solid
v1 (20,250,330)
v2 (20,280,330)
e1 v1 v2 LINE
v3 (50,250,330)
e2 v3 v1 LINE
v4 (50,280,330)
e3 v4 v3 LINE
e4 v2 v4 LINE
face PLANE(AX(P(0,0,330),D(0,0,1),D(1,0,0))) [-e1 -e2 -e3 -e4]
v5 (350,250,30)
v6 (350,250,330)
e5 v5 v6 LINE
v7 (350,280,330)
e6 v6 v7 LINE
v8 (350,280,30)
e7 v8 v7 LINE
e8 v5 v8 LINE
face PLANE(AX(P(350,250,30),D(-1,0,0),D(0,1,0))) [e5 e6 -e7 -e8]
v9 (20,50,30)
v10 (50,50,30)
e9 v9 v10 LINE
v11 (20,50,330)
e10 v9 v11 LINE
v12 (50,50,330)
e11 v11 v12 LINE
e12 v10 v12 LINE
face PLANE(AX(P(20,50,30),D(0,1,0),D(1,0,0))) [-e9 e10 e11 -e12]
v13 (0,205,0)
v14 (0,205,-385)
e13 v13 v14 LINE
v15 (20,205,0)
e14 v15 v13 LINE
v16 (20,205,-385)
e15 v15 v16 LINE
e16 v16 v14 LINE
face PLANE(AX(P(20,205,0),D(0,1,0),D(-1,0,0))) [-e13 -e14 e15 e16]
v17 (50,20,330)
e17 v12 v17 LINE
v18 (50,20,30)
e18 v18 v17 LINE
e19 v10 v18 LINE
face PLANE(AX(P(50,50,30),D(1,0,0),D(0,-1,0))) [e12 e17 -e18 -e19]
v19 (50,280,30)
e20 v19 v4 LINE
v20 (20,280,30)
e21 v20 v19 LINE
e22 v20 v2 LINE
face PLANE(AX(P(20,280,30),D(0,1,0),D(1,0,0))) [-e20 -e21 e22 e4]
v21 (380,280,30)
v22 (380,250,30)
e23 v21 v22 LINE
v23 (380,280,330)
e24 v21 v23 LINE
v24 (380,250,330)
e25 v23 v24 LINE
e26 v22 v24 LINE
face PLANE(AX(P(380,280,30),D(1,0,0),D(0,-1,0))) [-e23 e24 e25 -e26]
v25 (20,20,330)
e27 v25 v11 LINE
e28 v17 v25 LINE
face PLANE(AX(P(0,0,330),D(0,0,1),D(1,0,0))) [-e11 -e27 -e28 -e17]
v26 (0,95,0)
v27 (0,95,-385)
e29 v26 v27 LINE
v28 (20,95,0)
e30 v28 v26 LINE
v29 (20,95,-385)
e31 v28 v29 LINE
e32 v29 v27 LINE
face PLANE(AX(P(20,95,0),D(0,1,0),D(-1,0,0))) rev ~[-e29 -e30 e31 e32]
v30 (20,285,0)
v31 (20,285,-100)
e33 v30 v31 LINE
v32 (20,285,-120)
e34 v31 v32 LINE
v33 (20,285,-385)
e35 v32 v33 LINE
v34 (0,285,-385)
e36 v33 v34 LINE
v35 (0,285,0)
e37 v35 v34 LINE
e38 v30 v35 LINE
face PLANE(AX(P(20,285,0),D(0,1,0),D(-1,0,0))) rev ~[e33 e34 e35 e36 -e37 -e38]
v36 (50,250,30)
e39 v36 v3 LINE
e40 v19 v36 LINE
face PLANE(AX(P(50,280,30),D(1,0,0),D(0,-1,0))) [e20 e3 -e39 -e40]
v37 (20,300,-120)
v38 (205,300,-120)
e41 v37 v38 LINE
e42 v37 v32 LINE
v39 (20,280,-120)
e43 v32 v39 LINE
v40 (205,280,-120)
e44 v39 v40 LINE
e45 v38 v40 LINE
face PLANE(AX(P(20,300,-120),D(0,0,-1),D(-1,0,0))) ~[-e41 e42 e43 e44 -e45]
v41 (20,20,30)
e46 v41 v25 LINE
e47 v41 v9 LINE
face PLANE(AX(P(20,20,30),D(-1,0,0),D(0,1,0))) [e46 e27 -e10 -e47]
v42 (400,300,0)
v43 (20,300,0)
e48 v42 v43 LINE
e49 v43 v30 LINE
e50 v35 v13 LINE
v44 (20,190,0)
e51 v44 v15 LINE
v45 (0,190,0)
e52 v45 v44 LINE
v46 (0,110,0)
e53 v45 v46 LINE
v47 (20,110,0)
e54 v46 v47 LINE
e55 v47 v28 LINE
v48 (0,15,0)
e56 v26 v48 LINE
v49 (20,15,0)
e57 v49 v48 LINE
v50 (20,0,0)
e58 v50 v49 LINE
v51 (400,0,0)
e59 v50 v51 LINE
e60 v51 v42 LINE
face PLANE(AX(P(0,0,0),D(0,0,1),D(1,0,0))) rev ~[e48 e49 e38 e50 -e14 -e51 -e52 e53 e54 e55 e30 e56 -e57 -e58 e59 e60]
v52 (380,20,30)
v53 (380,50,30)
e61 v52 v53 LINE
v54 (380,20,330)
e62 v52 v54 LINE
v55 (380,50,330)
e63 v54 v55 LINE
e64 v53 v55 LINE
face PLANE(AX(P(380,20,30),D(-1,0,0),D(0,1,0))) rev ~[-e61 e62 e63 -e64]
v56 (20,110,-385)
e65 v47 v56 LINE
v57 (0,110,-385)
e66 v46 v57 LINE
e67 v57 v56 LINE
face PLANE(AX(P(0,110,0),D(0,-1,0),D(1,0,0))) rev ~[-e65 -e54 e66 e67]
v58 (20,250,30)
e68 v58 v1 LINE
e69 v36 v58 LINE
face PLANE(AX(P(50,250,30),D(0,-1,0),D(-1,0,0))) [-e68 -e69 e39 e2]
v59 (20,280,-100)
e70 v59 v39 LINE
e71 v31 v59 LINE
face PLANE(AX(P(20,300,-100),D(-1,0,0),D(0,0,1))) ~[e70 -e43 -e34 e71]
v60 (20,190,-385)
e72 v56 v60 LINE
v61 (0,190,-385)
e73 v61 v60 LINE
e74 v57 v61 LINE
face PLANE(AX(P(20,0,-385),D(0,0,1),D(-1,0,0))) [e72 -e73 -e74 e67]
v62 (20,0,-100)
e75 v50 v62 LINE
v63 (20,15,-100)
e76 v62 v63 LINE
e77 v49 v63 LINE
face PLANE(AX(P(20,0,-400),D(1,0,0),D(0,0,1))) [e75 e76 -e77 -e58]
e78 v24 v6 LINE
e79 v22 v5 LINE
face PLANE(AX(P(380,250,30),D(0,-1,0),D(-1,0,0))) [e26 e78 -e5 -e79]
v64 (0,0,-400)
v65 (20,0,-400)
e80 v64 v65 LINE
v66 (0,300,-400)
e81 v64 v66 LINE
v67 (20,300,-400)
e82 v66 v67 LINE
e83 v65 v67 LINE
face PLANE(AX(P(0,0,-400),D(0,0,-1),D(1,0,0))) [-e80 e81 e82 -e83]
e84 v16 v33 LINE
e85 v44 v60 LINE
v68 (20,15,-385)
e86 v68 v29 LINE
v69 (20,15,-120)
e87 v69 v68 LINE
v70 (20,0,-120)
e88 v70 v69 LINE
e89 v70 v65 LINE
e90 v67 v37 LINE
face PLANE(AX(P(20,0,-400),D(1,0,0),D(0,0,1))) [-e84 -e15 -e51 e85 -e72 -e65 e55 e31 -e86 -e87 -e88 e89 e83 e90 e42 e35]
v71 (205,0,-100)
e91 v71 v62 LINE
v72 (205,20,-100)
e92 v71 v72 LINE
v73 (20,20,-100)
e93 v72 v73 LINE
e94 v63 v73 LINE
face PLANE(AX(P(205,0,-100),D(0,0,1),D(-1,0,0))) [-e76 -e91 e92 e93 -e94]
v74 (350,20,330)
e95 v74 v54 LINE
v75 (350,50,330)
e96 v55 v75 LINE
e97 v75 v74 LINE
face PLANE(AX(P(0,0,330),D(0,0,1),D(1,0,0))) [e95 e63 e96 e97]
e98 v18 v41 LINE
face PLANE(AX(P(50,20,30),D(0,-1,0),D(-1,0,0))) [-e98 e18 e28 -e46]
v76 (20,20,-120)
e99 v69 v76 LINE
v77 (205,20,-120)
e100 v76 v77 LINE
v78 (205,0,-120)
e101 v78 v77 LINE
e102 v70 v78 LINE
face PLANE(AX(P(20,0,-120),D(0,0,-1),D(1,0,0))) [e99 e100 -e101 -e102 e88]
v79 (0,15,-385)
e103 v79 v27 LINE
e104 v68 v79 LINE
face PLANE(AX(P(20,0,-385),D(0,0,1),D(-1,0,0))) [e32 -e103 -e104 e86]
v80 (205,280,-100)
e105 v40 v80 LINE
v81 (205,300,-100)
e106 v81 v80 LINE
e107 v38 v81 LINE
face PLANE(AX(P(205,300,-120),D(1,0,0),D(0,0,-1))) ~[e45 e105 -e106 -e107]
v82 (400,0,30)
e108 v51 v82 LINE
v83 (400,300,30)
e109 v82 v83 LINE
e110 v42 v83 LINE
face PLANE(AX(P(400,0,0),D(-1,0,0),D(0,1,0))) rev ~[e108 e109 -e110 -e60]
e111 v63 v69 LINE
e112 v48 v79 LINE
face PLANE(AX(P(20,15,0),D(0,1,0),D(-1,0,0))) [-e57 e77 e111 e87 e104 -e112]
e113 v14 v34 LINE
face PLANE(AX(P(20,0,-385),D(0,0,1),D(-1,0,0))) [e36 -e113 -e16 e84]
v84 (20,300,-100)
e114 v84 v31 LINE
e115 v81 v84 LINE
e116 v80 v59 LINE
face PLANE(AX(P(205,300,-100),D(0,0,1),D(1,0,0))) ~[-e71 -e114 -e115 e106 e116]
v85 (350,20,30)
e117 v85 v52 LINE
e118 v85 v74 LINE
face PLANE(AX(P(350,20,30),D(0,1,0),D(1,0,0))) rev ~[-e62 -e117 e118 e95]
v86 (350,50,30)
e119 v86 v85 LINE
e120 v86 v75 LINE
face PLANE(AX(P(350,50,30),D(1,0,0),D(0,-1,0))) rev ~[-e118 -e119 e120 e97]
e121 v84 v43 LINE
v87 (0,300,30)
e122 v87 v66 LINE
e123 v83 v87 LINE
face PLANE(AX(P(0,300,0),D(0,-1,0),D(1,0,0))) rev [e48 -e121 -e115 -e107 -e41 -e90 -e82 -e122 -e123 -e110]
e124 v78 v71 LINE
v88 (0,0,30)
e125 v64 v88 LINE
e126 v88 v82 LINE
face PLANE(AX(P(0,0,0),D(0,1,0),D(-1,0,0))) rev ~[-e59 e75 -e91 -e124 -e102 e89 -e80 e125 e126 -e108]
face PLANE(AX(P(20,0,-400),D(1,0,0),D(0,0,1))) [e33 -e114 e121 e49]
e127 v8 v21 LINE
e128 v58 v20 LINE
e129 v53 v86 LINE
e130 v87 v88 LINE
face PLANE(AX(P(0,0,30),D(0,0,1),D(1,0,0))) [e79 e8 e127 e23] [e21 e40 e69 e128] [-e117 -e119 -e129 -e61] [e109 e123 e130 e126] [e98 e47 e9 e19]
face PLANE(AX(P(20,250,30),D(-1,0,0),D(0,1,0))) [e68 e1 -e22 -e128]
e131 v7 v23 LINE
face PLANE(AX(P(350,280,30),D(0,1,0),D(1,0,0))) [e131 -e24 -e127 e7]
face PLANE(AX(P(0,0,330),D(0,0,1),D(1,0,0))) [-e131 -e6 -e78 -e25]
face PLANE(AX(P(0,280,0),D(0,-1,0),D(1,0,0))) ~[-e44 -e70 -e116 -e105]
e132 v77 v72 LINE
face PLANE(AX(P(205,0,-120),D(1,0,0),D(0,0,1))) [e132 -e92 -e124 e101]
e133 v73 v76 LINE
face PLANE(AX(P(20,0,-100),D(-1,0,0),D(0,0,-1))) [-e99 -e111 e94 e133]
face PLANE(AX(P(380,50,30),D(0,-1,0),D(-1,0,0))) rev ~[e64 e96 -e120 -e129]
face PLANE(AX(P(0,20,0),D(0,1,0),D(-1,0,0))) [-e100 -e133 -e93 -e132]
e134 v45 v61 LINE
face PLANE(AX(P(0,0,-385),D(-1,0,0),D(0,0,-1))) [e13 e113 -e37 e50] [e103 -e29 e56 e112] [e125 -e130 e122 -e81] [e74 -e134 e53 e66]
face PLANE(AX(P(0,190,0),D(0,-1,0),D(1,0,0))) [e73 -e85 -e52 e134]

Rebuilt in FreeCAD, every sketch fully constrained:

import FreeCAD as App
import Part
import Sketcher

doc = App.newDocument("Part")
body = doc.addObject("PartDesign::Body", "Body")

# Sketch on XY plane
sketch1 = doc.addObject("Sketcher::SketchObject", "Sketch")
body.addObject(sketch1)
sketch1.AttachmentSupport = (doc.XY_Plane, [""])
sketch1.MapMode = "FlatFace"
sketch1.addGeometry(Part.LineSegment(App.Vector(0, 300, 0), App.Vector(0, 0, 0)), False)
sketch1.addGeometry(Part.LineSegment(App.Vector(0, 0, 0), App.Vector(400, 0, 0)), False)
sketch1.addGeometry(Part.LineSegment(App.Vector(400, 0, 0), App.Vector(400, 300, 0)), False)
sketch1.addGeometry(Part.LineSegment(App.Vector(400, 300, 0), App.Vector(0, 300, 0)), False)
sketch1.addConstraint(Sketcher.Constraint("Coincident", 0, 2, 1, 1))
sketch1.addConstraint(Sketcher.Constraint("Coincident", 1, 2, 2, 1))
sketch1.addConstraint(Sketcher.Constraint("Coincident", 2, 2, 3, 1))
sketch1.addConstraint(Sketcher.Constraint("Coincident", 3, 2, 0, 1))
sketch1.addConstraint(Sketcher.Constraint("Vertical", 0))
sketch1.addConstraint(Sketcher.Constraint("Horizontal", 1))
sketch1.addConstraint(Sketcher.Constraint("Vertical", 2))
sketch1.addConstraint(Sketcher.Constraint("Horizontal", 3))
sketch1.addConstraint(Sketcher.Constraint("Coincident", 0, 2, -1, 1))
sketch1.addConstraint(Sketcher.Constraint("DistanceX", 1, 1, 1, 2, 400.0))
sketch1.addConstraint(Sketcher.Constraint("DistanceY", 0, 2, 0, 1, 300.0))
pad1 = doc.addObject("PartDesign::Pad", "Pad")
body.addObject(pad1)
pad1.Profile = sketch1
pad1.Length = 30

# Sketch on XY plane
sketch2 = doc.addObject("Sketcher::SketchObject", "Sketch001")
body.addObject(sketch2)
sketch2.AttachmentSupport = (doc.XY_Plane, [""])
sketch2.MapMode = "FlatFace"
sketch2.AttachmentOffset = App.Placement(App.Vector(0, 0, 30), App.Rotation())
sketch2.addGeometry(Part.LineSegment(App.Vector(50, 280, 0), App.Vector(20, 280, 0)), False)
sketch2.addGeometry(Part.LineSegment(App.Vector(20, 280, 0), App.Vector(20, 250, 0)), False)
sketch2.addGeometry(Part.LineSegment(App.Vector(20, 250, 0), App.Vector(50, 250, 0)), False)
sketch2.addGeometry(Part.LineSegment(App.Vector(50, 250, 0), App.Vector(50, 280, 0)), False)
sketch2.addGeometry(Part.LineSegment(App.Vector(380, 280, 0), App.Vector(350, 280, 0)), False)
sketch2.addGeometry(Part.LineSegment(App.Vector(350, 280, 0), App.Vector(350, 250, 0)), False)
sketch2.addGeometry(Part.LineSegment(App.Vector(350, 250, 0), App.Vector(380, 250, 0)), False)
sketch2.addGeometry(Part.LineSegment(App.Vector(380, 250, 0), App.Vector(380, 280, 0)), False)
sketch2.addGeometry(Part.LineSegment(App.Vector(350, 50, 0), App.Vector(350, 20, 0)), False)
sketch2.addGeometry(Part.LineSegment(App.Vector(350, 20, 0), App.Vector(380, 20, 0)), False)
sketch2.addGeometry(Part.LineSegment(App.Vector(380, 20, 0), App.Vector(380, 50, 0)), False)
sketch2.addGeometry(Part.LineSegment(App.Vector(380, 50, 0), App.Vector(350, 50, 0)), False)
sketch2.addGeometry(Part.LineSegment(App.Vector(50, 50, 0), App.Vector(20, 50, 0)), False)
sketch2.addGeometry(Part.LineSegment(App.Vector(20, 50, 0), App.Vector(20, 20, 0)), False)
sketch2.addGeometry(Part.LineSegment(App.Vector(20, 20, 0), App.Vector(50, 20, 0)), False)
sketch2.addGeometry(Part.LineSegment(App.Vector(50, 20, 0), App.Vector(50, 50, 0)), False)
sketch2.addConstraint(Sketcher.Constraint("Coincident", 0, 2, 1, 1))
sketch2.addConstraint(Sketcher.Constraint("Coincident", 1, 2, 2, 1))
sketch2.addConstraint(Sketcher.Constraint("Coincident", 2, 2, 3, 1))
sketch2.addConstraint(Sketcher.Constraint("Coincident", 3, 2, 0, 1))
sketch2.addConstraint(Sketcher.Constraint("Coincident", 4, 2, 5, 1))
sketch2.addConstraint(Sketcher.Constraint("Coincident", 5, 2, 6, 1))
sketch2.addConstraint(Sketcher.Constraint("Coincident", 6, 2, 7, 1))
sketch2.addConstraint(Sketcher.Constraint("Coincident", 7, 2, 4, 1))
sketch2.addConstraint(Sketcher.Constraint("Coincident", 8, 2, 9, 1))
sketch2.addConstraint(Sketcher.Constraint("Coincident", 9, 2, 10, 1))
sketch2.addConstraint(Sketcher.Constraint("Coincident", 10, 2, 11, 1))
sketch2.addConstraint(Sketcher.Constraint("Coincident", 11, 2, 8, 1))
sketch2.addConstraint(Sketcher.Constraint("Coincident", 12, 2, 13, 1))
sketch2.addConstraint(Sketcher.Constraint("Coincident", 13, 2, 14, 1))
sketch2.addConstraint(Sketcher.Constraint("Coincident", 14, 2, 15, 1))
sketch2.addConstraint(Sketcher.Constraint("Coincident", 15, 2, 12, 1))
sketch2.addConstraint(Sketcher.Constraint("Horizontal", 0))
sketch2.addConstraint(Sketcher.Constraint("Vertical", 1))
sketch2.addConstraint(Sketcher.Constraint("Horizontal", 2))
sketch2.addConstraint(Sketcher.Constraint("Vertical", 3))
sketch2.addConstraint(Sketcher.Constraint("Horizontal", 4))
sketch2.addConstraint(Sketcher.Constraint("Vertical", 5))
sketch2.addConstraint(Sketcher.Constraint("Horizontal", 6))
sketch2.addConstraint(Sketcher.Constraint("Vertical", 7))
sketch2.addConstraint(Sketcher.Constraint("Vertical", 8))
sketch2.addConstraint(Sketcher.Constraint("Horizontal", 9))
sketch2.addConstraint(Sketcher.Constraint("Vertical", 10))
sketch2.addConstraint(Sketcher.Constraint("Horizontal", 11))
sketch2.addConstraint(Sketcher.Constraint("Horizontal", 12))
sketch2.addConstraint(Sketcher.Constraint("Vertical", 13))
sketch2.addConstraint(Sketcher.Constraint("Horizontal", 14))
sketch2.addConstraint(Sketcher.Constraint("Vertical", 15))
sketch2.addConstraint(Sketcher.Constraint("Horizontal", 3, 2, 4, 2))
sketch2.addConstraint(Sketcher.Constraint("Horizontal", 2, 2, 5, 2))
sketch2.addConstraint(Sketcher.Constraint("Horizontal", 11, 2, 12, 2))
sketch2.addConstraint(Sketcher.Constraint("Horizontal", 9, 2, 13, 2))
sketch2.addConstraint(Sketcher.Constraint("Vertical", 5, 2, 8, 2))
sketch2.addConstraint(Sketcher.Constraint("Vertical", 7, 2, 9, 2))
sketch2.addConstraint(Sketcher.Constraint("Vertical", 1, 2, 12, 2))
sketch2.addConstraint(Sketcher.Constraint("Vertical", 3, 2, 14, 2))
sketch2.addConstraint(Sketcher.Constraint("Equal", 2, 4))
sketch2.addConstraint(Sketcher.Constraint("Equal", 14, 1))
sketch2.addConstraint(Sketcher.Constraint("Equal", 7, 8))
sketch2.addConstraint(Sketcher.Constraint("DistanceX", 0, 2, 0, 1, 30.0))
sketch2.addConstraint(Sketcher.Constraint("DistanceX", -1, 1, 0, 2, 20.0))
sketch2.addConstraint(Sketcher.Constraint("DistanceY", -1, 1, 8, 2, 20.0))
sketch2.addConstraint(Sketcher.Constraint("DistanceY", -1, 1, 0, 2, 280.0))
sketch2.addConstraint(Sketcher.Constraint("DistanceX", -1, 1, 4, 2, 350.0))
pad2 = doc.addObject("PartDesign::Pad", "Pad001")
body.addObject(pad2)
pad2.Profile = sketch2
pad2.Length = 300

# Sketch on XY plane
sketch3 = doc.addObject("Sketcher::SketchObject", "Sketch002")
body.addObject(sketch3)
sketch3.AttachmentSupport = (doc.XY_Plane, [""])
sketch3.MapMode = "FlatFace"
sketch3.addGeometry(Part.LineSegment(App.Vector(0, 0, 0), App.Vector(0, 15, 0)), False)
sketch3.addGeometry(Part.LineSegment(App.Vector(0, 15, 0), App.Vector(20, 15, 0)), False)
sketch3.addGeometry(Part.LineSegment(App.Vector(20, 15, 0), App.Vector(20, 0, 0)), False)
sketch3.addGeometry(Part.LineSegment(App.Vector(20, 0, 0), App.Vector(0, 0, 0)), False)
sketch3.addGeometry(Part.LineSegment(App.Vector(0, 95, 0), App.Vector(0, 110, 0)), False)
sketch3.addGeometry(Part.LineSegment(App.Vector(0, 110, 0), App.Vector(20, 110, 0)), False)
sketch3.addGeometry(Part.LineSegment(App.Vector(20, 110, 0), App.Vector(20, 95, 0)), False)
sketch3.addGeometry(Part.LineSegment(App.Vector(20, 95, 0), App.Vector(0, 95, 0)), False)
sketch3.addGeometry(Part.LineSegment(App.Vector(0, 190, 0), App.Vector(0, 205, 0)), False)
sketch3.addGeometry(Part.LineSegment(App.Vector(0, 205, 0), App.Vector(20, 205, 0)), False)
sketch3.addGeometry(Part.LineSegment(App.Vector(20, 205, 0), App.Vector(20, 190, 0)), False)
sketch3.addGeometry(Part.LineSegment(App.Vector(20, 190, 0), App.Vector(0, 190, 0)), False)
sketch3.addGeometry(Part.LineSegment(App.Vector(0, 300, 0), App.Vector(20, 300, 0)), False)
sketch3.addGeometry(Part.LineSegment(App.Vector(20, 300, 0), App.Vector(20, 285, 0)), False)
sketch3.addGeometry(Part.LineSegment(App.Vector(20, 285, 0), App.Vector(0, 285, 0)), False)
sketch3.addGeometry(Part.LineSegment(App.Vector(0, 285, 0), App.Vector(0, 300, 0)), False)
sketch3.addConstraint(Sketcher.Constraint("Coincident", 0, 2, 1, 1))
sketch3.addConstraint(Sketcher.Constraint("Coincident", 1, 2, 2, 1))
sketch3.addConstraint(Sketcher.Constraint("Coincident", 2, 2, 3, 1))
sketch3.addConstraint(Sketcher.Constraint("Coincident", 3, 2, 0, 1))
sketch3.addConstraint(Sketcher.Constraint("Coincident", 4, 2, 5, 1))
sketch3.addConstraint(Sketcher.Constraint("Coincident", 5, 2, 6, 1))
sketch3.addConstraint(Sketcher.Constraint("Coincident", 6, 2, 7, 1))
sketch3.addConstraint(Sketcher.Constraint("Coincident", 7, 2, 4, 1))
sketch3.addConstraint(Sketcher.Constraint("Coincident", 8, 2, 9, 1))
sketch3.addConstraint(Sketcher.Constraint("Coincident", 9, 2, 10, 1))
sketch3.addConstraint(Sketcher.Constraint("Coincident", 10, 2, 11, 1))
sketch3.addConstraint(Sketcher.Constraint("Coincident", 11, 2, 8, 1))
sketch3.addConstraint(Sketcher.Constraint("Coincident", 12, 2, 13, 1))
sketch3.addConstraint(Sketcher.Constraint("Coincident", 13, 2, 14, 1))
sketch3.addConstraint(Sketcher.Constraint("Coincident", 14, 2, 15, 1))
sketch3.addConstraint(Sketcher.Constraint("Coincident", 15, 2, 12, 1))
sketch3.addConstraint(Sketcher.Constraint("Vertical", 0))
sketch3.addConstraint(Sketcher.Constraint("Horizontal", 1))
sketch3.addConstraint(Sketcher.Constraint("Vertical", 2))
sketch3.addConstraint(Sketcher.Constraint("Horizontal", 3))
sketch3.addConstraint(Sketcher.Constraint("Vertical", 4))
sketch3.addConstraint(Sketcher.Constraint("Horizontal", 5))
sketch3.addConstraint(Sketcher.Constraint("Vertical", 6))
sketch3.addConstraint(Sketcher.Constraint("Horizontal", 7))
sketch3.addConstraint(Sketcher.Constraint("Vertical", 8))
sketch3.addConstraint(Sketcher.Constraint("Horizontal", 9))
sketch3.addConstraint(Sketcher.Constraint("Vertical", 10))
sketch3.addConstraint(Sketcher.Constraint("Horizontal", 11))
sketch3.addConstraint(Sketcher.Constraint("Horizontal", 12))
sketch3.addConstraint(Sketcher.Constraint("Vertical", 13))
sketch3.addConstraint(Sketcher.Constraint("Horizontal", 14))
sketch3.addConstraint(Sketcher.Constraint("Vertical", 15))
sketch3.addConstraint(Sketcher.Constraint("Coincident", 3, 2, -1, 1))
sketch3.addConstraint(Sketcher.Constraint("PointOnObject", 4, 2, -2))
sketch3.addConstraint(Sketcher.Constraint("PointOnObject", 8, 2, -2))
sketch3.addConstraint(Sketcher.Constraint("PointOnObject", 14, 2, -2))
sketch3.addConstraint(Sketcher.Constraint("Vertical", 2, 2, 5, 2))
sketch3.addConstraint(Sketcher.Constraint("Vertical", 6, 2, 9, 2))
sketch3.addConstraint(Sketcher.Constraint("Vertical", 10, 2, 12, 2))
sketch3.addConstraint(Sketcher.Constraint("Equal", 2, 4))
sketch3.addConstraint(Sketcher.Constraint("Equal", 6, 8))
sketch3.addConstraint(Sketcher.Constraint("Equal", 10, 13))
sketch3.addConstraint(Sketcher.Constraint("DistanceX", 1, 1, 1, 2, 20.0))
sketch3.addConstraint(Sketcher.Constraint("DistanceY", 0, 1, 0, 2, 15.0))
sketch3.addConstraint(Sketcher.Constraint("DistanceY", 1, 2, 6, 2, 80.0))
sketch3.addConstraint(Sketcher.Constraint("DistanceY", 5, 2, 10, 2, 80.0))
sketch3.addConstraint(Sketcher.Constraint("DistanceY", 9, 2, 13, 2, 80.0))
pad3 = doc.addObject("PartDesign::Pad", "Pad002")
body.addObject(pad3)
pad3.Profile = sketch3
pad3.Length = 385
pad3.Reversed = True

# Sketch on XZ plane
sketch4 = doc.addObject("Sketcher::SketchObject", "Sketch003")
body.addObject(sketch4)
sketch4.AttachmentSupport = (doc.XZ_Plane, [""])
sketch4.MapMode = "FlatFace"
sketch4.addGeometry(Part.LineSegment(App.Vector(20, -400, 0), App.Vector(0, -400, 0)), False)
sketch4.addGeometry(Part.LineSegment(App.Vector(0, -400, 0), App.Vector(0, -385, 0)), False)
sketch4.addGeometry(Part.LineSegment(App.Vector(0, -385, 0), App.Vector(20, -385, 0)), False)
sketch4.addGeometry(Part.LineSegment(App.Vector(20, -385, 0), App.Vector(20, -400, 0)), False)
sketch4.addConstraint(Sketcher.Constraint("Coincident", 0, 2, 1, 1))
sketch4.addConstraint(Sketcher.Constraint("Coincident", 1, 2, 2, 1))
sketch4.addConstraint(Sketcher.Constraint("Coincident", 2, 2, 3, 1))
sketch4.addConstraint(Sketcher.Constraint("Coincident", 3, 2, 0, 1))
sketch4.addConstraint(Sketcher.Constraint("Horizontal", 0))
sketch4.addConstraint(Sketcher.Constraint("Vertical", 1))
sketch4.addConstraint(Sketcher.Constraint("Horizontal", 2))
sketch4.addConstraint(Sketcher.Constraint("Vertical", 3))
sketch4.addConstraint(Sketcher.Constraint("PointOnObject", 0, 2, -2))
sketch4.addConstraint(Sketcher.Constraint("DistanceX", 0, 2, 0, 1, 20.0))
sketch4.addConstraint(Sketcher.Constraint("DistanceY", 1, 1, 1, 2, 15.0))
sketch4.addConstraint(Sketcher.Constraint("DistanceY", 0, 2, -1, 1, 400.0))
pad4 = doc.addObject("PartDesign::Pad", "Pad003")
body.addObject(pad4)
pad4.Profile = sketch4
pad4.Length = 300
pad4.Reversed = True

# Sketch on XZ plane
sketch5 = doc.addObject("Sketcher::SketchObject", "Sketch004")
body.addObject(sketch5)
sketch5.AttachmentSupport = (doc.XZ_Plane, [""])
sketch5.MapMode = "FlatFace"
sketch5.addGeometry(Part.LineSegment(App.Vector(20, -120, 0), App.Vector(20, -100, 0)), False)
sketch5.addGeometry(Part.LineSegment(App.Vector(20, -100, 0), App.Vector(205, -100, 0)), False)
sketch5.addGeometry(Part.LineSegment(App.Vector(205, -100, 0), App.Vector(205, -120, 0)), False)
sketch5.addGeometry(Part.LineSegment(App.Vector(205, -120, 0), App.Vector(20, -120, 0)), False)
sketch5.addConstraint(Sketcher.Constraint("Coincident", 0, 2, 1, 1))
sketch5.addConstraint(Sketcher.Constraint("Coincident", 1, 2, 2, 1))
sketch5.addConstraint(Sketcher.Constraint("Coincident", 2, 2, 3, 1))
sketch5.addConstraint(Sketcher.Constraint("Coincident", 3, 2, 0, 1))
sketch5.addConstraint(Sketcher.Constraint("Vertical", 0))
sketch5.addConstraint(Sketcher.Constraint("Horizontal", 1))
sketch5.addConstraint(Sketcher.Constraint("Vertical", 2))
sketch5.addConstraint(Sketcher.Constraint("Horizontal", 3))
sketch5.addConstraint(Sketcher.Constraint("DistanceX", 1, 1, 1, 2, 185.0))
sketch5.addConstraint(Sketcher.Constraint("DistanceY", 0, 1, 0, 2, 20.0))
sketch5.addConstraint(Sketcher.Constraint("DistanceX", -1, 1, 0, 2, 20.0))
sketch5.addConstraint(Sketcher.Constraint("DistanceY", 0, 2, -1, 1, 100.0))
pad5 = doc.addObject("PartDesign::Pad", "Pad004")
body.addObject(pad5)
pad5.Profile = sketch5
pad5.Length = 20
pad5.Reversed = True
doc.recompute()

datumplane = doc.addObject("PartDesign::Plane", "DatumPlane")
body.addObject(datumplane)
datumplane.AttachmentSupport = (doc.XZ_Plane, [""])
datumplane.MapMode = "FlatFace"
datumplane.AttachmentOffset = App.Placement(App.Vector(0, 0, -150), App.Rotation())
mirrored = doc.addObject("PartDesign::Mirrored", "Mirrored")
body.addObject(mirrored)
mirrored.Originals = [pad5]
mirrored.MirrorPlane = (datumplane, [""])
body.Tip = mirrored

doc.recompute()
